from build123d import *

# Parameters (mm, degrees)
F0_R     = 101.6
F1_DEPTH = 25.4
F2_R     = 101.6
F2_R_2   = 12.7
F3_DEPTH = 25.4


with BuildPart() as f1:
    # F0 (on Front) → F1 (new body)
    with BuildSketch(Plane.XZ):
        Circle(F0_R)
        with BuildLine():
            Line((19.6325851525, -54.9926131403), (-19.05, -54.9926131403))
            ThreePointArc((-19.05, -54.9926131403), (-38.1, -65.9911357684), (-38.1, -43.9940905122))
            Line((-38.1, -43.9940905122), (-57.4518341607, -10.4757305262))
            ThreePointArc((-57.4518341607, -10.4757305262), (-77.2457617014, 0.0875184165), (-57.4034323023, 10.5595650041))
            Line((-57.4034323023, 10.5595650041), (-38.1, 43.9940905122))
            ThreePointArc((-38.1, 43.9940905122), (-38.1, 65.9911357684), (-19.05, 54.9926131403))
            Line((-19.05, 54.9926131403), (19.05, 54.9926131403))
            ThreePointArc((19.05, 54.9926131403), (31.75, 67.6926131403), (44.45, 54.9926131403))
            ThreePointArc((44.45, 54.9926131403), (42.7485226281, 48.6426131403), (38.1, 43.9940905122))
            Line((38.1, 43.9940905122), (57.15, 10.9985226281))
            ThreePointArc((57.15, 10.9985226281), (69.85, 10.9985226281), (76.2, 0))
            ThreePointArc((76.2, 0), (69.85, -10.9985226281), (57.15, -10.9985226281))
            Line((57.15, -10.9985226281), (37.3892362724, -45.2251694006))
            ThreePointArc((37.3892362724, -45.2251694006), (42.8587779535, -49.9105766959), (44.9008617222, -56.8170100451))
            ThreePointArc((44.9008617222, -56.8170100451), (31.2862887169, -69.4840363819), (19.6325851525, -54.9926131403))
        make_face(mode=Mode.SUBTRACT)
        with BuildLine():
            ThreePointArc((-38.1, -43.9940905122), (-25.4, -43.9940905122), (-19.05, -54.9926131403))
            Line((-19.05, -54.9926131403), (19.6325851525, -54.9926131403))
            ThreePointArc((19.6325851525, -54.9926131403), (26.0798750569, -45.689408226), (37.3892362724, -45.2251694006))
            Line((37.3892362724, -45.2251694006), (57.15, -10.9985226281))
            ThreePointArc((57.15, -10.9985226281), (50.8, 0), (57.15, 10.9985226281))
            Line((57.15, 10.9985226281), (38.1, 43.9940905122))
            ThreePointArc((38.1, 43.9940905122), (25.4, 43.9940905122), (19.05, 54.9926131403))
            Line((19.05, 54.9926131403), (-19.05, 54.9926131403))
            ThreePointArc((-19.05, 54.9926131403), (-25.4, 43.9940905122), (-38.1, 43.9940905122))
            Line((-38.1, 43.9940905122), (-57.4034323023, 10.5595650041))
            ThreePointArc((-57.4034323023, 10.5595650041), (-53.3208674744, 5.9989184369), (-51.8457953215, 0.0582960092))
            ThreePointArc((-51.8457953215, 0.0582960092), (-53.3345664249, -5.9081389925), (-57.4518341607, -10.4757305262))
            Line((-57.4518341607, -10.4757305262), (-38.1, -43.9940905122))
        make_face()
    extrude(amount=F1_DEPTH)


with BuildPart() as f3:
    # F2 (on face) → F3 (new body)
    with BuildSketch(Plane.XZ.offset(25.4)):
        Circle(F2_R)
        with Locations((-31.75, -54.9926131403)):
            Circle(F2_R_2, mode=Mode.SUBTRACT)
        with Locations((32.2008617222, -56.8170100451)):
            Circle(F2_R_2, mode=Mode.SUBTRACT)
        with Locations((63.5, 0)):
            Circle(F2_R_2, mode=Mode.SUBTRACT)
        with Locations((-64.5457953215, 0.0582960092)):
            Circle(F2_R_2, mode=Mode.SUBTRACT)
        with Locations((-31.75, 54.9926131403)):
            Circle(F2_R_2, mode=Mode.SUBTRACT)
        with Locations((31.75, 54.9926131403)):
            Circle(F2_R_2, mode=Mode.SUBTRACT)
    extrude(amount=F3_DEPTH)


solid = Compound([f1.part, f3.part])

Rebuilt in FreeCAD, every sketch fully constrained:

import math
import FreeCAD as App
import Part
import Sketcher

V = App.Vector
Q = App.Units.Quantity

doc = App.newDocument("Part")
body = doc.addObject("PartDesign::Body", "Body")

# Sketch on XZ plane
sketch1 = body.newObject("Sketcher::SketchObject", "Sketch")
sketch1.AttachmentSupport = (doc.getObject("XZ_Plane"), [""])
sketch1.MapMode = "FlatFace"
sketch1.addGeometry([
    Part.Circle(V(0, 0, 0), V(0, 0, 1), 101.6),  # 0
    Part.ArcOfCircle(Part.Circle(V(32.200862, -56.81701, 0), V(0, 0, 1), 12.7), math.radians(171.740697), math.radians(360)),  # 1
    Part.ArcOfCircle(Part.Circle(V(32.200862, -56.81701, 0), V(0, 0, 1), 12.7), math.radians(65.88726), math.radians(171.740697)),  # 2
    Part.ArcOfCircle(Part.Circle(V(32.200862, -56.81701, 0), V(0, 0, 1), 12.7), math.radians(0), math.radians(65.88726)),  # 3
    Part.ArcOfCircle(Part.Circle(V(63.5, 0, 0), V(0, 0, 1), 12.7), math.radians(-120), math.radians(0)),  # 4
    Part.ArcOfCircle(Part.Circle(V(63.5, 0, 0), V(0, 0, 1), 12.7), math.radians(120), math.radians(240)),  # 5
    Part.ArcOfCircle(Part.Circle(V(63.5, 0, 0), V(0, 0, 1), 12.7), math.radians(0), math.radians(120)),  # 6
    Part.ArcOfCircle(Part.Circle(V(31.75, 54.992613, 0), V(0, 0, 1), 12.7), math.radians(-60), math.radians(0)),  # 7
    Part.ArcOfCircle(Part.Circle(V(31.75, 54.992613, 0), V(0, 0, 1), 12.7), math.radians(180), math.radians(300)),  # 8
    Part.ArcOfCircle(Part.Circle(V(31.75, 54.992613, 0), V(0, 0, 1), 12.7), math.radians(0), math.radians(180)),  # 9
    Part.ArcOfCircle(Part.Circle(V(-31.75, 54.992613, 0), V(0, 0, 1), 12.7), math.radians(0), math.radians(240)),  # 10
    Part.ArcOfCircle(Part.Circle(V(-31.75, 54.992613, 0), V(0, 0, 1), 12.7), math.radians(-120), math.radians(0)),  # 11
    Part.ArcOfCircle(Part.Circle(V(-64.545795, 0.058296, 0), V(0, 0, 1), 12.7), math.radians(55.778701), math.radians(303.957626)),  # 12
    Part.ArcOfCircle(Part.Circle(V(-64.545795, 0.058296, 0), V(0, 0, 1), 12.7), math.radians(0), math.radians(55.778701)),  # 13
    Part.ArcOfCircle(Part.Circle(V(-64.545795, 0.058296, 0), V(0, 0, 1), 12.7), math.radians(-56.042374), math.radians(0)),  # 14
    Part.ArcOfCircle(Part.Circle(V(-31.75, -54.992613, 0), V(0, 0, 1), 12.7), math.radians(120), math.radians(360)),  # 15
    Part.ArcOfCircle(Part.Circle(V(-31.75, -54.992613, 0), V(0, 0, 1), 12.7), math.radians(0), math.radians(120)),  # 16
], False)
sketch1.addConstraint([
    Sketcher.Constraint("Tangent", 1, 1, 2, 2),
    Sketcher.Constraint("Tangent", 2, 1, 3, 2),
    Sketcher.Constraint("Tangent", 3, 1, 1, 2),
    Sketcher.Constraint("Tangent", 4, 1, 5, 2),
    Sketcher.Constraint("Tangent", 5, 1, 6, 2),
    Sketcher.Constraint("Tangent", 6, 1, 4, 2),
    Sketcher.Constraint("Tangent", 7, 1, 8, 2),
    Sketcher.Constraint("Tangent", 8, 1, 9, 2),
    Sketcher.Constraint("Tangent", 9, 1, 7, 2),
    Sketcher.Constraint("Tangent", 10, 1, 11, 2),
    Sketcher.Constraint("Coincident", 11, 1, 10, 2),
    Sketcher.Constraint("Tangent", 12, 1, 13, 2),
    Sketcher.Constraint("Tangent", 13, 1, 14, 2),
    Sketcher.Constraint("Tangent", 14, 1, 12, 2),
    Sketcher.Constraint("Tangent", 15, 1, 16, 2),
    Sketcher.Constraint("Coincident", 16, 1, 15, 2),
    Sketcher.Constraint("Coincident", 0, 3, -1, 1),
    Sketcher.Constraint("Equal", 3, 4),
    Sketcher.Constraint("Equal", 6, 7),
    Sketcher.Constraint("Equal", 9, 10),
    Sketcher.Constraint("Equal", 11, 12),
    Sketcher.Constraint("Equal", 14, 15),
    Sketcher.Constraint("Symmetric", 7, 3, 15, 3, -1, 1),
    Sketcher.Constraint("Symmetric", 7, 3, 10, 3, -2),
    Sketcher.Constraint("Symmetric", 4, 1, 5, 1, -1),
    Sketcher.Constraint("PointOnObject", 6, 1, -1),
    Sketcher.Constraint("Horizontal", 16, 3, 1, 1),
    Sketcher.Constraint("Horizontal", 2, 3, 3, 1),
    Sketcher.Constraint("Horizontal", 11, 3, 8, 1),
    Sketcher.Constraint("Horizontal", 8, 1, 9, 1),
    Sketcher.Constraint("Horizontal", 9, 1, 10, 1),
    Sketcher.Constraint("Horizontal", 7, 1, 11, 1),
    Sketcher.Constraint("Horizontal", 14, 3, 13, 1),
    Sketcher.Constraint("Horizontal", 1, 1, 16, 1),
    Sketcher.Constraint("Vertical", 11, 1, 15, 1),
    Sketcher.Constraint("Diameter", 0, Q("8 in")),
    Sketcher.Constraint("Radius", 1, Q("0.5 in")),
    Sketcher.Constraint("DistanceX", -1, 1, 6, 1, Q("3 in")),
    Sketcher.Constraint("DistanceX", 7, 3, 5, 1, Q("1 in")),
    Sketcher.Constraint("DistanceX", 7, 1, 4, 3, Q("1 in")),
    Sketcher.Constraint("DistanceX", 10, 3, 8, 1, Q("2 in")),
    Sketcher.Constraint("DistanceX", 14, 1, 12, 1, Q("0.048402 mm")),
    Sketcher.Constraint("DistanceX", -1, 1, 1, 3, Q("32.200862 mm")),
    Sketcher.Constraint("DistanceY", 1, 3, -1, 1, Q("56.81701 mm")),
    Sketcher.Constraint("DistanceY", 2, 1, -1, 1, Q("45.225169 mm")),
    Sketcher.Constraint("DistanceY", -1, 1, 7, 1, Q("43.994091 mm")),
    Sketcher.Constraint("DistanceY", 14, 1, -1, 1, Q("10.475731 mm")),
    Sketcher.Constraint("DistanceY", 15, 3, 12, 3, Q("55.050909 mm")),
    Sketcher.Constraint("DistanceX", 12, 3, -1, 1, Q("64.545795 mm")),
])
pad1 = body.newObject("PartDesign::Pad", "Pad")
pad1.Profile = sketch1
pad1.Length = Q("1 in")
body2 = doc.addObject("PartDesign::Body", "Body001")

# Sketch on XZ plane
sketch2 = body2.newObject("Sketcher::SketchObject", "Sketch001")
sketch2.AttachmentSupport = (doc.getObject("XZ_Plane001"), [""])
sketch2.MapMode = "FlatFace"
sketch2.AttachmentOffset = App.Placement(V(0, 0, 1 * 25.4), App.Rotation())
sketch2.addGeometry([
    Part.Circle(V(0, 0, 0), V(0, 0, 1), 101.6),  # 0
    Part.Circle(V(-31.75, -54.992613, 0), V(0, 0, 1), 12.7),  # 1
    Part.Circle(V(32.200862, -56.81701, 0), V(0, 0, 1), 12.7),  # 2
    Part.Circle(V(-64.545795, 0.058296, 0), V(0, 0, 1), 12.7),  # 3
    Part.Circle(V(-31.75, 54.992613, 0), V(0, 0, 1), 12.7),  # 4
    Part.Circle(V(63.5, 0, 0), V(0, 0, 1), 12.7),  # 5
    Part.Circle(V(31.75, 54.992613, 0), V(0, 0, 1), 12.7),  # 6
], False)
sketch2.addConstraint([
    Sketcher.Constraint("Coincident", 0, 3, -1, 1),
    Sketcher.Constraint("Equal", 1, 2),
    Sketcher.Constraint("Equal", 2, 3),
    Sketcher.Constraint("Equal", 3, 4),
    Sketcher.Constraint("Equal", 4, 5),
    Sketcher.Constraint("Equal", 5, 6),
    Sketcher.Constraint("Symmetric", 1, 3, 6, 3, -1, 1),
    Sketcher.Constraint("Symmetric", 4, 3, 6, 3, -2),
    Sketcher.Constraint("PointOnObject", 5, 3, -1),
    Sketcher.Constraint("Diameter", 0, Q("8 in")),
    Sketcher.Constraint("Diameter", 1, Q("1 in")),
    Sketcher.Constraint("DistanceX", -1, 1, 5, 3, Q("2.5 in")),
    Sketcher.Constraint("DistanceX", 4, 3, 6, 3, Q("2.5 in")),
    Sketcher.Constraint("DistanceX", -1, 1, 2, 3, Q("32.200862 mm")),
    Sketcher.Constraint("DistanceY", 2, 3, -1, 1, Q("56.81701 mm")),
    Sketcher.Constraint("DistanceY", 1, 3, 3, 3, Q("55.050909 mm")),
    Sketcher.Constraint("DistanceY", 1, 3, -1, 1, Q("54.992613 mm")),
    Sketcher.Constraint("DistanceX", 3, 3, -1, 1, Q("64.545795 mm")),
])
pad2 = body2.newObject("PartDesign::Pad", "Pad001")
pad2.Profile = sketch2
pad2.Length = Q("1 in")

doc.recompute()
